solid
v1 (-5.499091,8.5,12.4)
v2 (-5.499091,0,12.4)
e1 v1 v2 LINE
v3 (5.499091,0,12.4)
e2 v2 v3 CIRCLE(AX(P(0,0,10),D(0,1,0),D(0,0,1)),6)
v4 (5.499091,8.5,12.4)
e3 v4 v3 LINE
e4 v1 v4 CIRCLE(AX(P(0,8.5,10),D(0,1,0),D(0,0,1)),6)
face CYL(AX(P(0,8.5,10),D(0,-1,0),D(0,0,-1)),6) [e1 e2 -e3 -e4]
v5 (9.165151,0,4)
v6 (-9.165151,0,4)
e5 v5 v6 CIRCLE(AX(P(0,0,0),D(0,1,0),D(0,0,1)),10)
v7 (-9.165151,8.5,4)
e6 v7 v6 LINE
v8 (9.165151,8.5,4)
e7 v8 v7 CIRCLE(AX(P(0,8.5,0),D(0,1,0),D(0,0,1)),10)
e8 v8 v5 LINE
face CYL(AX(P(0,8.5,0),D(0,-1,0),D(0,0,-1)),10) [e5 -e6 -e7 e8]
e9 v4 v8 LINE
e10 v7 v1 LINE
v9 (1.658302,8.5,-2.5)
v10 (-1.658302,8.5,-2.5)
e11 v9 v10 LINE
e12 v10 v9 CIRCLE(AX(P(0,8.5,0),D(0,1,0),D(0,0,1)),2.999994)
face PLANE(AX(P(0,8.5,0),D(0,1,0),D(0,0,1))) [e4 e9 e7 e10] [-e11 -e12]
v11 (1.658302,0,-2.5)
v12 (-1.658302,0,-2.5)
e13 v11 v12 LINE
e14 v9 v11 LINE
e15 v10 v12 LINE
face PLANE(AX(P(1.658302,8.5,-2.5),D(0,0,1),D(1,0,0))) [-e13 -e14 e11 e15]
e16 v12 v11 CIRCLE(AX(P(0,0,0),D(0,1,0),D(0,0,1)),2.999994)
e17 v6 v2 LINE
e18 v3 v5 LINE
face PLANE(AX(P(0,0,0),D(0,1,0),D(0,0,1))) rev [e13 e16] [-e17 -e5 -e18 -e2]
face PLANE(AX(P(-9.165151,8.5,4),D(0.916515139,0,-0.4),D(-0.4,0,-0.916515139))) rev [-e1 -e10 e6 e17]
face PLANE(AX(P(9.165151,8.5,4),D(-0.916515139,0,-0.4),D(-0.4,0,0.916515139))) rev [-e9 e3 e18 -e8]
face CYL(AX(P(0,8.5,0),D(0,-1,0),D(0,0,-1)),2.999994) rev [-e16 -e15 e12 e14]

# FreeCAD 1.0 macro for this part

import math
import FreeCAD as App
import Part
import Sketcher
Q = App.Units.Quantity

doc = App.newDocument("Part")
body = doc.addObject("PartDesign::Body", "Body")

sketch1 = body.newObject("Sketcher::SketchObject", "Sketch")
sketch1.AttachmentSupport = (doc.getObject("XZ_Plane"), [""])
sketch1.MapMode = "FlatFace"
sketch1.addGeometry([
    Part.LineSegment(App.Vector(-9.2, 4, 0), App.Vector(-5.5, 12.4, 0)),
    Part.ArcOfCircle(Part.Circle(App.Vector(0, 10, 0), App.Vector(0, 0, 1), 6), math.radians(24), math.radians(156)),
    Part.LineSegment(App.Vector(5.5, 12.4, 0), App.Vector(9.2, 4, 0)),
    Part.ArcOfCircle(Part.Circle(App.Vector(0, 0, 0), App.Vector(0, 0, 1), 10), math.radians(156), math.radians(384)),
    Part.LineSegment(App.Vector(-1.7, -2.5, 0), App.Vector(1.7, -2.5, 0)),
    Part.ArcOfCircle(Part.Circle(App.Vector(0, 0, 0), App.Vector(0, 0, 1), 3), math.radians(-56), math.radians(236)),
], False)
sketch1.addConstraint([
    Sketcher.Constraint("Tangent", 0, 2, 1, 2),
    Sketcher.Constraint("Tangent", 1, 1, 2, 1),
    Sketcher.Constraint("Tangent", 2, 2, 3, 2),
    Sketcher.Constraint("Tangent", 3, 1, 0, 1),
    Sketcher.Constraint("Coincident", 4, 1, 5, 2),
    Sketcher.Constraint("Coincident", 5, 1, 4, 2),
    Sketcher.Constraint("Horizontal", 4),
    Sketcher.Constraint("Coincident", 3, 3, -1, 1),
    Sketcher.Constraint("Coincident", 5, 3, -1, 1),
    Sketcher.Constraint("PointOnObject", 1, 3, -2),
    Sketcher.Constraint("Radius", 1, Q("6 mm")),
    Sketcher.Constraint("Radius", 3, Q("10 mm")),
    Sketcher.Constraint("DistanceY", -1, 1, 1, 3, Q("10 mm")),
    Sketcher.Constraint("DistanceY", 4, 1, -1, 1, Q("2.5 mm")),
    Sketcher.Constraint("Radius", 5, Q("2.999994 mm")),
])
pad1 = body.newObject("PartDesign::Pad", "Pad")
pad1.Profile = sketch1
pad1.Length = 8.5
pad1.Reversed = True

doc.recompute()
